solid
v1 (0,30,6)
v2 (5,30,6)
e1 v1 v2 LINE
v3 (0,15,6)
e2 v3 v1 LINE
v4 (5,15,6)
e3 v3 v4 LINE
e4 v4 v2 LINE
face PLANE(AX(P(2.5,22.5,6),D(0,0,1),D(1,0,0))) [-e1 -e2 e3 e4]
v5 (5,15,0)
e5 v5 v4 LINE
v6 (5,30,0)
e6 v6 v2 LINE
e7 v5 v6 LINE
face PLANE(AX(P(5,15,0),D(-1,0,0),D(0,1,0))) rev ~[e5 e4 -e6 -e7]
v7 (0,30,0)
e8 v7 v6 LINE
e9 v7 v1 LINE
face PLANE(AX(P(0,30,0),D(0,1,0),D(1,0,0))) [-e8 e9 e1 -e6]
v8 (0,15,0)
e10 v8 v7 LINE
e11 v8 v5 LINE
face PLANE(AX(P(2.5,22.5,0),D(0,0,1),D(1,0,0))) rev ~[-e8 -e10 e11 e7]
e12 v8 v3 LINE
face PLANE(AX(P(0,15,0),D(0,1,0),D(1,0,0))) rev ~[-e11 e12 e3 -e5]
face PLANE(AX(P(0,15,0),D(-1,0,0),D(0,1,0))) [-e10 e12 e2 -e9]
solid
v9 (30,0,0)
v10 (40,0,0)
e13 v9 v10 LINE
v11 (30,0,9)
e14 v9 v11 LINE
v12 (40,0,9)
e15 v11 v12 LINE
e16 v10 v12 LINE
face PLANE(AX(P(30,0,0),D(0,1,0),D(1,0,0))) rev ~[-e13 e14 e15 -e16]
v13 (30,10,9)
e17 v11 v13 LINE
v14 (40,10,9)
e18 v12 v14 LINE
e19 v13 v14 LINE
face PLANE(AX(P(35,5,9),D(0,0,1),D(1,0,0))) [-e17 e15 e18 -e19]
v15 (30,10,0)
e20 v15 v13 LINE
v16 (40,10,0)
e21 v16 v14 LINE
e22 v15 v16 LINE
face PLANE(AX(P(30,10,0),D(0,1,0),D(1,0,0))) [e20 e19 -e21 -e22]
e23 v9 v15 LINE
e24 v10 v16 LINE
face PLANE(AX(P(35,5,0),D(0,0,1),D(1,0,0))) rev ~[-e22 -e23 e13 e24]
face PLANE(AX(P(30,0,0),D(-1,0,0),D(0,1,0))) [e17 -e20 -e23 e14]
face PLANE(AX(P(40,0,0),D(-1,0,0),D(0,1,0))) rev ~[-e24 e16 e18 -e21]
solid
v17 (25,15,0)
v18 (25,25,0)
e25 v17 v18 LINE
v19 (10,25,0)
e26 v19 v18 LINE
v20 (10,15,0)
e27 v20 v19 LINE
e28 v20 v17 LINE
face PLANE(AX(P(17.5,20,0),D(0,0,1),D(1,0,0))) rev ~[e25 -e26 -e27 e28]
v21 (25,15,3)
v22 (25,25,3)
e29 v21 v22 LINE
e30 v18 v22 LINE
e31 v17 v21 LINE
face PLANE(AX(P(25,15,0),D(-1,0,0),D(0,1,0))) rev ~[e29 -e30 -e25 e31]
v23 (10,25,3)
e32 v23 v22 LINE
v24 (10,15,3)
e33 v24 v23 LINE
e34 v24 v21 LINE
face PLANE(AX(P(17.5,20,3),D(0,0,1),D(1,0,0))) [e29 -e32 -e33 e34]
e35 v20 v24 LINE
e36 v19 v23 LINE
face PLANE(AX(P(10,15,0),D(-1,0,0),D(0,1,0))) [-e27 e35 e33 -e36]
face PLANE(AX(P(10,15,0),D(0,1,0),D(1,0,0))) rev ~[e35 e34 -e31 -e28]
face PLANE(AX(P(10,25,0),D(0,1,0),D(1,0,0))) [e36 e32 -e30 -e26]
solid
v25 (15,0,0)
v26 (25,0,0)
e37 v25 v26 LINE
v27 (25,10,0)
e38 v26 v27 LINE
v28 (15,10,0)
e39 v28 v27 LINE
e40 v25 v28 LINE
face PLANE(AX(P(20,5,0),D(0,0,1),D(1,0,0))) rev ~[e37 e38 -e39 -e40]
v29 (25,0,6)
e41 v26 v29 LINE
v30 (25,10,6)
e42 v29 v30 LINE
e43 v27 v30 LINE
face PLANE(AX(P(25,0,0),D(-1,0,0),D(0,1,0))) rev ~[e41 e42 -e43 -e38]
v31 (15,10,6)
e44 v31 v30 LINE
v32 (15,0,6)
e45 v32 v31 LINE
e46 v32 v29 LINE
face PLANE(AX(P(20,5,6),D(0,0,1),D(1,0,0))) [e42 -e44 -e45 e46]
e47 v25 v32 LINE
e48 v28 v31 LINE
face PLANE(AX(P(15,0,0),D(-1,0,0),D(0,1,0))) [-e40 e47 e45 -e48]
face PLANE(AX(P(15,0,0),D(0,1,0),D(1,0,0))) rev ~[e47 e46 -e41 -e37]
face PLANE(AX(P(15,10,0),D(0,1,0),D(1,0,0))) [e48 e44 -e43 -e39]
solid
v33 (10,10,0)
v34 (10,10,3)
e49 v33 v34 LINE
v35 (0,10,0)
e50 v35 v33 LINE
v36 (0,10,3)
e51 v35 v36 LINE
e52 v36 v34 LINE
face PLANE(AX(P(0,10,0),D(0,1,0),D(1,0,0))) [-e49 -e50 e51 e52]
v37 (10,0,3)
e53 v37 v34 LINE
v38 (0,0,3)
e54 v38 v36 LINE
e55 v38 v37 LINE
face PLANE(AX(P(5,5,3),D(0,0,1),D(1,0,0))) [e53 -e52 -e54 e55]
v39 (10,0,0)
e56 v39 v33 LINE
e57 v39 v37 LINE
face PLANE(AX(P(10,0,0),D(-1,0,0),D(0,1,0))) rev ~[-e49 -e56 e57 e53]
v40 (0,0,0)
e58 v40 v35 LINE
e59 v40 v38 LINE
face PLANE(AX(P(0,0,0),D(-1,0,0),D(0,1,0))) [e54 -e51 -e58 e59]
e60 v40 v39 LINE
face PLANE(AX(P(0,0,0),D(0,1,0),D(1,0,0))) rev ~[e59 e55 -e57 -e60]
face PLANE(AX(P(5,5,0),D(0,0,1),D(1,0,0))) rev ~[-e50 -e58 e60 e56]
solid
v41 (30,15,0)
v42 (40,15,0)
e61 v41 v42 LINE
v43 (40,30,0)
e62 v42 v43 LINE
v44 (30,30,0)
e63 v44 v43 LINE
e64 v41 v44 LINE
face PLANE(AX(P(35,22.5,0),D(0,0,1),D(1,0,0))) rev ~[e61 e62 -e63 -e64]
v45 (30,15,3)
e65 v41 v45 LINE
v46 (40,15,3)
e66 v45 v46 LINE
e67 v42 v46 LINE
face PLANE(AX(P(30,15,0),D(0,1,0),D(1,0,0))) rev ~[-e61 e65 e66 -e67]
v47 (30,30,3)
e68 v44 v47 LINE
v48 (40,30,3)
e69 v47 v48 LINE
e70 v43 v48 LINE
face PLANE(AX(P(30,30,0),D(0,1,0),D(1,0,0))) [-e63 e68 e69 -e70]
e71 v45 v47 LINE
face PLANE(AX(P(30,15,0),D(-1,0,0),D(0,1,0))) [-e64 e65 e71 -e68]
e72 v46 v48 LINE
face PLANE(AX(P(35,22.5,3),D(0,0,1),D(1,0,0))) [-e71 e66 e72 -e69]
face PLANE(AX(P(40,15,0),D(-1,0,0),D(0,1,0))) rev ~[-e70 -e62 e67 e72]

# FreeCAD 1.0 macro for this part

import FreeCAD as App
import Part
import Sketcher


def add_polygon(sketch, points):
    """Adds a closed chain of lines whose ends are joined by coincident constraints."""
    first, n = sketch.GeometryCount, len(points)
    for a, b in zip(points, points[1:] + points[:1]):
        sketch.addGeometry(Part.LineSegment(App.Vector(*a, 0), App.Vector(*b, 0)), False)
    for i in range(n):
        sketch.addConstraint(Sketcher.Constraint("Coincident", first + i, 2, first + (i + 1) % n, 1))

doc = App.newDocument("Part")
body = doc.addObject("PartDesign::Body", "Body")

# Sketch on XY plane
sketch1 = body.newObject("Sketcher::SketchObject", "Sketch")
sketch1.AttachmentSupport = (doc.getObject("XY_Plane"), [""])
sketch1.MapMode = "FlatFace"
add_polygon(sketch1, [(0, 10), (0, 0), (10, 0), (10, 10)])  # lines 0-3
sketch1.addConstraint([
    Sketcher.Constraint("Vertical", 0),
    Sketcher.Constraint("Horizontal", 1),
    Sketcher.Constraint("Vertical", 2),
    Sketcher.Constraint("Horizontal", 3),
    Sketcher.Constraint("Coincident", 0, 2, -1, 1),
    Sketcher.Constraint("Equal", 3, 0),
    Sketcher.Constraint("DistanceX", 1, 1, 1, 2, 10.0),
])
pad1 = body.newObject("PartDesign::Pad", "Pad")
pad1.Profile = sketch1
pad1.Length = 3
body2 = doc.addObject("PartDesign::Body", "Body001")

# Sketch on XY plane
sketch2 = body2.newObject("Sketcher::SketchObject", "Sketch001")
sketch2.AttachmentSupport = (doc.getObject("XY_Plane001"), [""])
sketch2.MapMode = "FlatFace"
add_polygon(sketch2, [(15, 10), (15, 0), (25, 0), (25, 10)])  # lines 0-3
sketch2.addConstraint([
    Sketcher.Constraint("Vertical", 0),
    Sketcher.Constraint("Horizontal", 1),
    Sketcher.Constraint("Vertical", 2),
    Sketcher.Constraint("Horizontal", 3),
    Sketcher.Constraint("PointOnObject", 0, 2, -1),
    Sketcher.Constraint("Equal", 3, 0),
    Sketcher.Constraint("DistanceX", 1, 1, 1, 2, 10.0),
    Sketcher.Constraint("DistanceX", -1, 1, 0, 2, 15.0),
])
pad2 = body2.newObject("PartDesign::Pad", "Pad001")
pad2.Profile = sketch2
pad2.Length = 6
body3 = doc.addObject("PartDesign::Body", "Body002")

# Sketch on XY plane
sketch3 = body3.newObject("Sketcher::SketchObject", "Sketch002")
sketch3.AttachmentSupport = (doc.getObject("XY_Plane002"), [""])
sketch3.MapMode = "FlatFace"
add_polygon(sketch3, [(30, 10), (30, 0), (40, 0), (40, 10)])  # lines 0-3
sketch3.addConstraint([
    Sketcher.Constraint("Vertical", 0),
    Sketcher.Constraint("Horizontal", 1),
    Sketcher.Constraint("Vertical", 2),
    Sketcher.Constraint("Horizontal", 3),
    Sketcher.Constraint("PointOnObject", 0, 2, -1),
    Sketcher.Constraint("Equal", 3, 0),
    Sketcher.Constraint("DistanceX", 1, 1, 1, 2, 10.0),
    Sketcher.Constraint("DistanceX", -1, 1, 0, 2, 30.0),
])
pad3 = body3.newObject("PartDesign::Pad", "Pad002")
pad3.Profile = sketch3
pad3.Length = 9
body4 = doc.addObject("PartDesign::Body", "Body003")

# Sketch on XY plane
sketch4 = body4.newObject("Sketcher::SketchObject", "Sketch003")
sketch4.AttachmentSupport = (doc.getObject("XY_Plane003"), [""])
sketch4.MapMode = "FlatFace"
add_polygon(sketch4, [(30, 30), (30, 15), (40, 15), (40, 30)])  # lines 0-3
sketch4.addConstraint([
    Sketcher.Constraint("Vertical", 0),
    Sketcher.Constraint("Horizontal", 1),
    Sketcher.Constraint("Vertical", 2),
    Sketcher.Constraint("Horizontal", 3),
    Sketcher.Constraint("DistanceX", 1, 1, 1, 2, 10.0),
    Sketcher.Constraint("DistanceY", 0, 2, 0, 1, 15.0),
    Sketcher.Constraint("DistanceX", -1, 1, 0, 2, 30.0),
    Sketcher.Constraint("DistanceY", -1, 1, 0, 2, 15.0),
])
pad4 = body4.newObject("PartDesign::Pad", "Pad003")
pad4.Profile = sketch4
pad4.Length = 3
body5 = doc.addObject("PartDesign::Body", "Body004")

# Sketch on XY plane
sketch5 = body5.newObject("Sketcher::SketchObject", "Sketch004")
sketch5.AttachmentSupport = (doc.getObject("XY_Plane004"), [""])
sketch5.MapMode = "FlatFace"
add_polygon(sketch5, [(10, 25), (10, 15), (25, 15), (25, 25)])  # lines 0-3
sketch5.addConstraint([
    Sketcher.Constraint("Vertical", 0),
    Sketcher.Constraint("Horizontal", 1),
    Sketcher.Constraint("Vertical", 2),
    Sketcher.Constraint("Horizontal", 3),
    Sketcher.Constraint("DistanceX", 1, 1, 1, 2, 15.0),
    Sketcher.Constraint("DistanceY", 0, 2, 0, 1, 10.0),
    Sketcher.Constraint("DistanceX", -1, 1, 0, 2, 10.0),
    Sketcher.Constraint("DistanceY", -1, 1, 0, 2, 15.0),
])
pad5 = body5.newObject("PartDesign::Pad", "Pad004")
pad5.Profile = sketch5
pad5.Length = 3
body6 = doc.addObject("PartDesign::Body", "Body005")

# Sketch on XY plane
sketch6 = body6.newObject("Sketcher::SketchObject", "Sketch005")
sketch6.AttachmentSupport = (doc.getObject("XY_Plane005"), [""])
sketch6.MapMode = "FlatFace"
add_polygon(sketch6, [(0, 30), (0, 15), (5, 15), (5, 30)])  # lines 0-3
sketch6.addConstraint([
    Sketcher.Constraint("Vertical", 0),
    Sketcher.Constraint("Horizontal", 1),
    Sketcher.Constraint("Vertical", 2),
    Sketcher.Constraint("Horizontal", 3),
    Sketcher.Constraint("PointOnObject", 0, 2, -2),
    Sketcher.Constraint("DistanceX", 1, 1, 1, 2, 5.0),
    Sketcher.Constraint("DistanceY", 0, 2, 0, 1, 15.0),
    Sketcher.Constraint("DistanceY", -1, 1, 0, 2, 15.0),
])
pad6 = body6.newObject("PartDesign::Pad", "Pad005")
pad6.Profile = sketch6
pad6.Length = 6

doc.recompute()
